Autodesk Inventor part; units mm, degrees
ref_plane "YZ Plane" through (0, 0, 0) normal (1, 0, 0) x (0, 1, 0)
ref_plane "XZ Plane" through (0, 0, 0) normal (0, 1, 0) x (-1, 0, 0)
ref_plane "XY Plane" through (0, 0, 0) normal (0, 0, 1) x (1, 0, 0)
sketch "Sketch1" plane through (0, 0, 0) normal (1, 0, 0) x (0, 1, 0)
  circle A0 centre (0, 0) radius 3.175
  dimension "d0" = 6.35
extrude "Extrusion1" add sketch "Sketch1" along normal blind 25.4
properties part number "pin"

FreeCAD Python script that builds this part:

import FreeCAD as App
import Part
import Sketcher
Q = App.Units.Quantity

doc = App.newDocument("Part")
body = doc.addObject("PartDesign::Body", "Body")

sketch1 = doc.addObject("Sketcher::SketchObject", "Sketch")
body.addObject(sketch1)
sketch1.AttachmentSupport = (doc.YZ_Plane, [""])
sketch1.MapMode = "FlatFace"
sketch1.addGeometry(Part.Circle(App.Vector(0, 0, 0), App.Vector(0, 0, 1), 3.2), False)
sketch1.addConstraint(Sketcher.Constraint("Coincident", 0, 3, -1, 1))
sketch1.addConstraint(Sketcher.Constraint("Diameter", 0, Q("0.25 in")))
pad1 = doc.addObject("PartDesign::Pad", "Pad")
body.addObject(pad1)
pad1.Profile = sketch1
pad1.Length = Q("1 in")

doc.recompute()
